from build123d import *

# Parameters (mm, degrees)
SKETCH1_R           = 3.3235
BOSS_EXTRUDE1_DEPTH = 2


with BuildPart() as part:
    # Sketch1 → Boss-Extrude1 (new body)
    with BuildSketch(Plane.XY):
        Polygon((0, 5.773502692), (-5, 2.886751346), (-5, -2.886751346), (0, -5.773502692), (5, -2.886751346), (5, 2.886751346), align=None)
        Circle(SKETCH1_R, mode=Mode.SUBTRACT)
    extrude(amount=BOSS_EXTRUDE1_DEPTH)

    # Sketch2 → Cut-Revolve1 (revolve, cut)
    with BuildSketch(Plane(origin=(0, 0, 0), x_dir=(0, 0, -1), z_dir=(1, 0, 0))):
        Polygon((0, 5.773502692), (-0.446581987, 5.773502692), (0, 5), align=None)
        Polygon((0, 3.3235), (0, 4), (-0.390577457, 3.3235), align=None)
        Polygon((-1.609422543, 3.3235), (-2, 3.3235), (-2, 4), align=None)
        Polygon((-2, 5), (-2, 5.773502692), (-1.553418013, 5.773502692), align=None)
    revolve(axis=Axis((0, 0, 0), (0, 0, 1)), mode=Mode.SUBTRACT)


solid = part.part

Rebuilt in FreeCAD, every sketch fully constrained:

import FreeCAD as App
import Part
import Sketcher
Q = App.Units.Quantity

doc = App.newDocument("Part")
body = doc.addObject("PartDesign::Body", "Body")

# Sketch on XY plane
sketch1 = doc.addObject("Sketcher::SketchObject", "Sketch")
body.addObject(sketch1)
sketch1.AttachmentSupport = (doc.XY_Plane, [""])
sketch1.MapMode = "FlatFace"
sketch1.addGeometry(Part.LineSegment(App.Vector(0, 5.773503, 0), App.Vector(-5, 2.886751, 0)), False)
sketch1.addGeometry(Part.LineSegment(App.Vector(-5, 2.886751, 0), App.Vector(-5, -2.886751, 0)), False)
sketch1.addGeometry(Part.LineSegment(App.Vector(-5, -2.886751, 0), App.Vector(0, -5.773503, 0)), False)
sketch1.addGeometry(Part.LineSegment(App.Vector(0, -5.773503, 0), App.Vector(5, -2.886751, 0)), False)
sketch1.addGeometry(Part.LineSegment(App.Vector(5, -2.886751, 0), App.Vector(5, 2.886751, 0)), False)
sketch1.addGeometry(Part.LineSegment(App.Vector(5, 2.886751, 0), App.Vector(0, 5.773503, 0)), False)
sketch1.addGeometry(Part.Circle(App.Vector(0, 0, 0), App.Vector(0, 0, 1), 3.3235), False)
sketch1.addConstraint(Sketcher.Constraint("Coincident", 0, 2, 1, 1))
sketch1.addConstraint(Sketcher.Constraint("Coincident", 1, 2, 2, 1))
sketch1.addConstraint(Sketcher.Constraint("Coincident", 2, 2, 3, 1))
sketch1.addConstraint(Sketcher.Constraint("Coincident", 3, 2, 4, 1))
sketch1.addConstraint(Sketcher.Constraint("Coincident", 4, 2, 5, 1))
sketch1.addConstraint(Sketcher.Constraint("Coincident", 5, 2, 0, 1))
sketch1.addConstraint(Sketcher.Constraint("Vertical", 1))
sketch1.addConstraint(Sketcher.Constraint("Vertical", 4))
sketch1.addConstraint(Sketcher.Constraint("Coincident", 6, 3, -1, 1))
sketch1.addConstraint(Sketcher.Constraint("Symmetric", 0, 2, 3, 2, -1, 1))
sketch1.addConstraint(Sketcher.Constraint("Symmetric", 2, 2, 5, 2, -1, 1))
sketch1.addConstraint(Sketcher.Constraint("PointOnObject", 2, 2, -2))
sketch1.addConstraint(Sketcher.Constraint("Parallel", 2, 5))
sketch1.addConstraint(Sketcher.Constraint("Horizontal", 1, 2, 3, 2))
sketch1.addConstraint(Sketcher.Constraint("Angle", 0, Q("-150 deg")))
sketch1.addConstraint(Sketcher.Constraint("Diameter", 6, 6.647))
sketch1.addConstraint(Sketcher.Constraint("DistanceX", 0, 2, -1, 1, 5.0))
sketch1.addConstraint(Sketcher.Constraint("DistanceY", 1, 2, 1, 1, 5.773503))
pad1 = doc.addObject("PartDesign::Pad", "Pad")
body.addObject(pad1)
pad1.Profile = sketch1
pad1.Length = 2

# Sketch on YZ plane
sketch2 = doc.addObject("Sketcher::SketchObject", "Sketch001")
body.addObject(sketch2)
sketch2.AttachmentSupport = (doc.YZ_Plane, [""])
sketch2.MapMode = "FlatFace"
sketch2.addGeometry(Part.LineSegment(App.Vector(5.773503, 0, 0), App.Vector(5.773503, 0.446582, 0)), False)
sketch2.addGeometry(Part.LineSegment(App.Vector(5.773503, 0.446582, 0), App.Vector(5, 0, 0)), False)
sketch2.addGeometry(Part.LineSegment(App.Vector(5, 0, 0), App.Vector(5.773503, 0, 0)), False)
sketch2.addGeometry(Part.LineSegment(App.Vector(3.3235, 0, 0), App.Vector(4, 0, 0)), False)
sketch2.addGeometry(Part.LineSegment(App.Vector(4, 0, 0), App.Vector(3.3235, 0.390577, 0)), False)
sketch2.addGeometry(Part.LineSegment(App.Vector(3.3235, 0.390577, 0), App.Vector(3.3235, 0, 0)), False)
sketch2.addGeometry(Part.LineSegment(App.Vector(3.3235, 2, 0), App.Vector(3.3235, 1.609423, 0)), False)
sketch2.addGeometry(Part.LineSegment(App.Vector(3.3235, 1.609423, 0), App.Vector(4, 2, 0)), False)
sketch2.addGeometry(Part.LineSegment(App.Vector(4, 2, 0), App.Vector(3.3235, 2, 0)), False)
sketch2.addGeometry(Part.LineSegment(App.Vector(5.773503, 2, 0), App.Vector(5, 2, 0)), False)
sketch2.addGeometry(Part.LineSegment(App.Vector(5, 2, 0), App.Vector(5.773503, 1.553418, 0)), False)
sketch2.addGeometry(Part.LineSegment(App.Vector(5.773503, 1.553418, 0), App.Vector(5.773503, 2, 0)), False)
sketch2.addConstraint(Sketcher.Constraint("Coincident", 0, 2, 1, 1))
sketch2.addConstraint(Sketcher.Constraint("Coincident", 1, 2, 2, 1))
sketch2.addConstraint(Sketcher.Constraint("Coincident", 2, 2, 0, 1))
sketch2.addConstraint(Sketcher.Constraint("Coincident", 3, 2, 4, 1))
sketch2.addConstraint(Sketcher.Constraint("Coincident", 4, 2, 5, 1))
sketch2.addConstraint(Sketcher.Constraint("Coincident", 5, 2, 3, 1))
sketch2.addConstraint(Sketcher.Constraint("Coincident", 6, 2, 7, 1))
sketch2.addConstraint(Sketcher.Constraint("Coincident", 7, 2, 8, 1))
sketch2.addConstraint(Sketcher.Constraint("Coincident", 8, 2, 6, 1))
sketch2.addConstraint(Sketcher.Constraint("Coincident", 9, 2, 10, 1))
sketch2.addConstraint(Sketcher.Constraint("Coincident", 10, 2, 11, 1))
sketch2.addConstraint(Sketcher.Constraint("Coincident", 11, 2, 9, 1))
sketch2.addConstraint(Sketcher.Constraint("Vertical", 0))
sketch2.addConstraint(Sketcher.Constraint("Horizontal", 2))
sketch2.addConstraint(Sketcher.Constraint("Horizontal", 3))
sketch2.addConstraint(Sketcher.Constraint("Vertical", 5))
sketch2.addConstraint(Sketcher.Constraint("Vertical", 6))
sketch2.addConstraint(Sketcher.Constraint("Horizontal", 8))
sketch2.addConstraint(Sketcher.Constraint("Horizontal", 9))
sketch2.addConstraint(Sketcher.Constraint("Vertical", 11))
sketch2.addConstraint(Sketcher.Constraint("PointOnObject", 1, 2, -1))
sketch2.addConstraint(Sketcher.Constraint("PointOnObject", 3, 2, -1))
sketch2.addConstraint(Sketcher.Constraint("Parallel", 1, 7))
sketch2.addConstraint(Sketcher.Constraint("Parallel", 4, 10))
sketch2.addConstraint(Sketcher.Constraint("Horizontal", 8, 2, 9, 2))
sketch2.addConstraint(Sketcher.Constraint("Vertical", 5, 2, 6, 2))
sketch2.addConstraint(Sketcher.Constraint("Vertical", 3, 2, 7, 2))
sketch2.addConstraint(Sketcher.Constraint("Vertical", 1, 2, 9, 2))
sketch2.addConstraint(Sketcher.Constraint("Vertical", 2, 2, 10, 2))
sketch2.addConstraint(Sketcher.Constraint("Equal", 5, 6))
sketch2.addConstraint(Sketcher.Constraint("Angle", 1, Q("-150 deg")))
sketch2.addConstraint(Sketcher.Constraint("DistanceX", -1, 1, 1, 2, 5.0))
sketch2.addConstraint(Sketcher.Constraint("DistanceX", -1, 1, 3, 2, 4.0))
sketch2.addConstraint(Sketcher.Constraint("DistanceY", -1, 1, 7, 2, 2.0))
sketch2.addConstraint(Sketcher.Constraint("DistanceX", 3, 1, 3, 2, 0.6765))
sketch2.addConstraint(Sketcher.Constraint("DistanceY", 0, 1, 0, 2, 0.446582))
groove = doc.addObject("PartDesign::Groove", "Groove")
body.addObject(groove)
groove.Profile = sketch2
groove.ReferenceAxis = (sketch2, ["V_Axis"])
groove.Angle = 360

doc.recompute()
